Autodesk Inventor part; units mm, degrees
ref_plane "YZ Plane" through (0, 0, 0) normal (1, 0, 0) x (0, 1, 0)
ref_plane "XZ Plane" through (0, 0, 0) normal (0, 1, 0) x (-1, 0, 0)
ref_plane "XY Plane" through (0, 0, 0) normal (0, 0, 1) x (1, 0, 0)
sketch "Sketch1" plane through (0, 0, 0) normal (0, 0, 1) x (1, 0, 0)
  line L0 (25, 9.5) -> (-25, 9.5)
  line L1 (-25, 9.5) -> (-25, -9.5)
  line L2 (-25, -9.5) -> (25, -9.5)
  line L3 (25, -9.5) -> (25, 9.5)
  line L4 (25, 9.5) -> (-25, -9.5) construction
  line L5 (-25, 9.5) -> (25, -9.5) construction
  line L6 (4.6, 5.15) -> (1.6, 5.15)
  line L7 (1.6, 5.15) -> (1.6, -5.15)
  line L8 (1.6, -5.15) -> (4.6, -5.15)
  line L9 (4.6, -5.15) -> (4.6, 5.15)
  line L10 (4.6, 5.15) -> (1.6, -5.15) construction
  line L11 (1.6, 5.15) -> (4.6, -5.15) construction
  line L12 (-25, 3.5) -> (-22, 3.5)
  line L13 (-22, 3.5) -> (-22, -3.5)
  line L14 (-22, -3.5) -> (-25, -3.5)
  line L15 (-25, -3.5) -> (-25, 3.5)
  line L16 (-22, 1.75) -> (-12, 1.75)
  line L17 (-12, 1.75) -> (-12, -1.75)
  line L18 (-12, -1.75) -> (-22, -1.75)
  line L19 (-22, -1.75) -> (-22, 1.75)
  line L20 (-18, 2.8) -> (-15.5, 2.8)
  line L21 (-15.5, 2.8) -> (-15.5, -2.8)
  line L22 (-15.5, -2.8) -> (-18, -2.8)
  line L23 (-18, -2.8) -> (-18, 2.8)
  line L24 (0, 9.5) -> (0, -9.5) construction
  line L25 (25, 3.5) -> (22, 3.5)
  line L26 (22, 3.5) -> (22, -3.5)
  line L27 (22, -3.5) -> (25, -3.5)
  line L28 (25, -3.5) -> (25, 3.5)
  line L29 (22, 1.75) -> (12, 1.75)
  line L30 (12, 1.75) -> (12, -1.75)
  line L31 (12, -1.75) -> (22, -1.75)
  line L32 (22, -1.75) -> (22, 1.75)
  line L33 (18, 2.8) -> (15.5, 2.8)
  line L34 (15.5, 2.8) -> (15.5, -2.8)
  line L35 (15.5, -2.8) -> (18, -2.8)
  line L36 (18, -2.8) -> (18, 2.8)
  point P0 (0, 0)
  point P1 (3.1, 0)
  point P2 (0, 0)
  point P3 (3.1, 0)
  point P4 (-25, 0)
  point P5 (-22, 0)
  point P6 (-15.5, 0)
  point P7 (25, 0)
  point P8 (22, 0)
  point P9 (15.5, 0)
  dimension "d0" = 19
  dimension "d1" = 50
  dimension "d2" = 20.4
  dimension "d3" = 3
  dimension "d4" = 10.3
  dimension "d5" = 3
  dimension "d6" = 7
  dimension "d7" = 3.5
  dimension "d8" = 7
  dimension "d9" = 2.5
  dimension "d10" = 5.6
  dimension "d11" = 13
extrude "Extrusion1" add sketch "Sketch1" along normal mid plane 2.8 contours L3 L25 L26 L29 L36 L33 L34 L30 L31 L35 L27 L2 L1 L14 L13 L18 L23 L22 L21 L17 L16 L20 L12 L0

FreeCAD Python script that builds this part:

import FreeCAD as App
import Part
import Sketcher

V = App.Vector


def add_polygon(sketch, points):
    """Adds a closed chain of lines whose ends are joined by coincident constraints."""
    first, n = sketch.GeometryCount, len(points)
    for a, b in zip(points, points[1:] + points[:1]):
        sketch.addGeometry(Part.LineSegment(App.Vector(*a, 0), App.Vector(*b, 0)), False)
    for i in range(n):
        sketch.addConstraint(Sketcher.Constraint("Coincident", first + i, 2, first + (i + 1) % n, 1))

doc = App.newDocument("Part")
body = doc.addObject("PartDesign::Body", "Body")

# Sketch on XY plane
sketch1 = body.newObject("Sketcher::SketchObject", "Sketch")
sketch1.AttachmentSupport = (doc.getObject("XY_Plane"), [""])
sketch1.MapMode = "FlatFace"
add_polygon(sketch1, [(25, 3.5), (25, 9.5), (-25, 9.5), (-25, 3.5), (-22, 3.5), (-22, 1.8), (-18, 1.8), (-18, 2.8), (-15.5, 2.8), (-15.5, 1.8), (-12, 1.8), (-12, -1.8), (-15.5, -1.8), (-15.5, -2.8), (-18, -2.8), (-18, -1.8), (-22, -1.8), (-22, -3.5), (-25, -3.5), (-25, -9.5), (25, -9.5), (25, -3.5), (22, -3.5), (22, -1.8), (18, -1.8), (18, -2.8), (15.5, -2.8), (15.5, -1.8), (12, -1.8), (12, 1.8), (15.5, 1.8), (15.5, 2.8), (18, 2.8), (18, 1.8), (22, 1.8), (22, 3.5)])  # lines 0-35
add_polygon(sketch1, [(1.6, 5.2), (4.6, 5.2), (4.6, -5.2), (1.6, -5.2)])  # lines 36-39
sketch1.addConstraint([
    Sketcher.Constraint("Vertical", 0),
    Sketcher.Constraint("Horizontal", 1),
    Sketcher.Constraint("Vertical", 2),
    Sketcher.Constraint("Horizontal", 3),
    Sketcher.Constraint("Vertical", 4),
    Sketcher.Constraint("Horizontal", 5),
    Sketcher.Constraint("Vertical", 6),
    Sketcher.Constraint("Horizontal", 7),
    Sketcher.Constraint("Vertical", 8),
    Sketcher.Constraint("Horizontal", 9),
    Sketcher.Constraint("Vertical", 10),
    Sketcher.Constraint("Horizontal", 11),
    Sketcher.Constraint("Vertical", 12),
    Sketcher.Constraint("Horizontal", 13),
    Sketcher.Constraint("Vertical", 14),
    Sketcher.Constraint("Horizontal", 15),
    Sketcher.Constraint("Vertical", 16),
    Sketcher.Constraint("Horizontal", 17),
    Sketcher.Constraint("Vertical", 18),
    Sketcher.Constraint("Horizontal", 19),
    Sketcher.Constraint("Vertical", 20),
    Sketcher.Constraint("Horizontal", 21),
    Sketcher.Constraint("Vertical", 22),
    Sketcher.Constraint("Horizontal", 23),
    Sketcher.Constraint("Vertical", 24),
    Sketcher.Constraint("Horizontal", 25),
    Sketcher.Constraint("Vertical", 26),
    Sketcher.Constraint("Horizontal", 27),
    Sketcher.Constraint("Vertical", 28),
    Sketcher.Constraint("Horizontal", 29),
    Sketcher.Constraint("Vertical", 30),
    Sketcher.Constraint("Horizontal", 31),
    Sketcher.Constraint("Vertical", 32),
    Sketcher.Constraint("Horizontal", 33),
    Sketcher.Constraint("Vertical", 34),
    Sketcher.Constraint("Horizontal", 35),
    Sketcher.Constraint("Horizontal", 36),
    Sketcher.Constraint("Vertical", 37),
    Sketcher.Constraint("Horizontal", 38),
    Sketcher.Constraint("Vertical", 39),
    Sketcher.Constraint("Symmetric", 0, 2, 18, 2, -1, 1),
    Sketcher.Constraint("Symmetric", 2, 2, 20, 2, -1, 1),
    Sketcher.Constraint("Symmetric", 4, 2, 22, 2, -1, 1),
    Sketcher.Constraint("Symmetric", 6, 2, 24, 2, -1, 1),
    Sketcher.Constraint("Symmetric", 8, 2, 26, 2, -1, 1),
    Sketcher.Constraint("Symmetric", 10, 2, 28, 2, -1, 1),
    Sketcher.Constraint("Symmetric", 12, 2, 30, 2, -1, 1),
    Sketcher.Constraint("Symmetric", 14, 2, 32, 2, -1, 1),
    Sketcher.Constraint("Symmetric", 16, 2, 34, 2, -1, 1),
    Sketcher.Constraint("Symmetric", 17, 2, 20, 2, -2),
    Sketcher.Constraint("Symmetric", 15, 2, 22, 2, -2),
    Sketcher.Constraint("Symmetric", 13, 2, 24, 2, -2),
    Sketcher.Constraint("Symmetric", 11, 2, 26, 2, -2),
    Sketcher.Constraint("Horizontal", 5, 2, 8, 2),
    Sketcher.Constraint("Equal", 35, 36),
    Sketcher.Constraint("Equal", 29, 10),
    Sketcher.Constraint("DistanceX", 1, 2, 1, 1, 50.0),
    Sketcher.Constraint("DistanceX", 3, 1, 3, 2, 3.0),
    Sketcher.Constraint("DistanceX", 7, 1, 7, 2, 2.5),
    Sketcher.Constraint("DistanceX", 9, 1, 9, 2, 3.5),
    Sketcher.Constraint("DistanceY", 37, 2, 37, 1, 10.3),
    Sketcher.Constraint("DistanceX", 2, 2, 5, 2, 7.0),
    Sketcher.Constraint("DistanceY", 17, 2, 2, 2, 7.0),
    Sketcher.Constraint("DistanceY", 19, 2, 0, 2, 19.0),
    Sketcher.Constraint("DistanceY", 12, 2, 7, 2, 5.6),
    Sketcher.Constraint("DistanceX", -1, 1, 36, 2, 4.6),
    Sketcher.Constraint("DistanceY", 28, 2, 36, 2, 3.4),
])
pad1 = body.newObject("PartDesign::Pad", "Pad")
pad1.Profile = sketch1
pad1.Length = 2.8
pad1.Midplane = True

doc.recompute()
